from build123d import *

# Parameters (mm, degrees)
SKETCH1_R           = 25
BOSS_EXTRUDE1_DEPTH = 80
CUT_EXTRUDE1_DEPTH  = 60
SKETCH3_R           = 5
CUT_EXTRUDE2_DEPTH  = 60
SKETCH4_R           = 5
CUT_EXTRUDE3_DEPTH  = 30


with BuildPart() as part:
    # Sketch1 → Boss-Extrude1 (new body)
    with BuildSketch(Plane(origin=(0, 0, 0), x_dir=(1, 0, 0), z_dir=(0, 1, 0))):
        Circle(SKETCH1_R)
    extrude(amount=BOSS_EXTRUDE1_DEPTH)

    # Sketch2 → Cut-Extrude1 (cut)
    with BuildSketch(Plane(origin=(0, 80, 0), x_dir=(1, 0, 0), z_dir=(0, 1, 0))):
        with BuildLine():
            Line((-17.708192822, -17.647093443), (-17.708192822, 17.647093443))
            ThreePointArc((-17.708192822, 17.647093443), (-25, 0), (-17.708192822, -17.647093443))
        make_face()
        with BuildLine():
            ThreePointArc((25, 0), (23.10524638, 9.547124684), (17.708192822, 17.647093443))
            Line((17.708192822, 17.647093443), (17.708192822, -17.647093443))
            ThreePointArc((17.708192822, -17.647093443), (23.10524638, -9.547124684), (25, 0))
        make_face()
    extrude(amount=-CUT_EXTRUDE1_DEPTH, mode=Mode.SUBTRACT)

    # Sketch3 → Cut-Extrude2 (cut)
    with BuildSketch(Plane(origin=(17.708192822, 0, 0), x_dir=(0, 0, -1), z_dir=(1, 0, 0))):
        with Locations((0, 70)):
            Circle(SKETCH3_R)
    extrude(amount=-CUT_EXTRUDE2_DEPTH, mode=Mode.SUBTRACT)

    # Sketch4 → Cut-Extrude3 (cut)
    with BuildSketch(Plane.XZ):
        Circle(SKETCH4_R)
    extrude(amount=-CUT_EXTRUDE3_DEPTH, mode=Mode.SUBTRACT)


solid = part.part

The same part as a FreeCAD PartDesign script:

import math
import FreeCAD as App
import Part
import Sketcher

V = App.Vector

doc = App.newDocument("Part")
body = doc.addObject("PartDesign::Body", "Body")

sketch1 = doc.addObject("Sketcher::SketchObject", "Sketch")
body.addObject(sketch1)
sketch1.AttachmentSupport = (doc.XZ_Plane, [""])
sketch1.MapMode = "FlatFace"
sketch1.addGeometry(Part.Circle(V(0, 0, 0), V(0, 0, 1), 25), False)
sketch1.addConstraint([
    Sketcher.Constraint("Coincident", 0, 3, -1, 1),
    Sketcher.Constraint("Diameter", 0, 50.0),
])
pad1 = doc.addObject("PartDesign::Pad", "Pad")
body.addObject(pad1)
pad1.Profile = sketch1
pad1.Length = 80
pad1.Reversed = True

sketch2 = doc.addObject("Sketcher::SketchObject", "Sketch001")
body.addObject(sketch2)
sketch2.AttachmentSupport = (doc.XZ_Plane, [""])
sketch2.MapMode = "FlatFace"
sketch2.AttachmentOffset = App.Placement(V(0, 0, -80), App.Rotation())
sketch2.addGeometry([
    Part.LineSegment(V(-18, 18, 0), V(-18, -18, 0)),
    Part.ArcOfCircle(Part.Circle(V(0, 0, 0), V(0, 0, 1), 25), math.radians(135), math.radians(225)),
    Part.ArcOfCircle(Part.Circle(V(0, 0, 0), V(0, 0, 1), 25), math.radians(-45), math.radians(0)),
    Part.LineSegment(V(18, -18, 0), V(18, 18, 0)),
    Part.ArcOfCircle(Part.Circle(V(0, 0, 0), V(0, 0, 1), 25), math.radians(0), math.radians(45)),
], False)
sketch2.addConstraint([
    Sketcher.Constraint("Coincident", 0, 1, 1, 1),
    Sketcher.Constraint("Coincident", 1, 2, 0, 2),
    Sketcher.Constraint("Coincident", 2, 1, 3, 1),
    Sketcher.Constraint("Coincident", 3, 2, 4, 2),
    Sketcher.Constraint("Tangent", 4, 1, 2, 2),
    Sketcher.Constraint("Vertical", 0),
    Sketcher.Constraint("Vertical", 3),
    Sketcher.Constraint("Coincident", 1, 3, -1, 1),
    Sketcher.Constraint("Coincident", 2, 3, -1, 1),
    Sketcher.Constraint("Equal", 1, 2),
    Sketcher.Constraint("Equal", 2, 4),
    Sketcher.Constraint("PointOnObject", 4, 1, -1),
    Sketcher.Constraint("Horizontal", 1, 2, 2, 1),
    Sketcher.Constraint("Radius", 1, 25.0),
    Sketcher.Constraint("DistanceY", 0, 2, 0, 1, 35.294187),
])
pocket1 = doc.addObject("PartDesign::Pocket", "Pocket")
body.addObject(pocket1)
pocket1.Profile = sketch2
pocket1.Length = 60
pocket1.Reversed = True

sketch3 = doc.addObject("Sketcher::SketchObject", "Sketch002")
body.addObject(sketch3)
sketch3.AttachmentSupport = (doc.YZ_Plane, [""])
sketch3.MapMode = "FlatFace"
sketch3.AttachmentOffset = App.Placement(V(0, 0, 17.708193), App.Rotation())
sketch3.addGeometry(Part.Circle(V(70, 0, 0), V(0, 0, 1), 5), False)
sketch3.addConstraint([
    Sketcher.Constraint("PointOnObject", 0, 3, -1),
    Sketcher.Constraint("Diameter", 0, 10.0),
    Sketcher.Constraint("DistanceX", -1, 1, 0, 3, 70.0),
])
pocket2 = doc.addObject("PartDesign::Pocket", "Pocket001")
body.addObject(pocket2)
pocket2.Profile = sketch3
pocket2.Length = 60

sketch4 = doc.addObject("Sketcher::SketchObject", "Sketch003")
body.addObject(sketch4)
sketch4.AttachmentSupport = (doc.XZ_Plane, [""])
sketch4.MapMode = "FlatFace"
sketch4.addGeometry(Part.Circle(V(0, 0, 0), V(0, 0, 1), 5), False)
sketch4.addConstraint([
    Sketcher.Constraint("Coincident", 0, 3, -1, 1),
    Sketcher.Constraint("Diameter", 0, 10.0),
])
pocket3 = doc.addObject("PartDesign::Pocket", "Pocket002")
body.addObject(pocket3)
pocket3.Profile = sketch4
pocket3.Length = 30

doc.recompute()
